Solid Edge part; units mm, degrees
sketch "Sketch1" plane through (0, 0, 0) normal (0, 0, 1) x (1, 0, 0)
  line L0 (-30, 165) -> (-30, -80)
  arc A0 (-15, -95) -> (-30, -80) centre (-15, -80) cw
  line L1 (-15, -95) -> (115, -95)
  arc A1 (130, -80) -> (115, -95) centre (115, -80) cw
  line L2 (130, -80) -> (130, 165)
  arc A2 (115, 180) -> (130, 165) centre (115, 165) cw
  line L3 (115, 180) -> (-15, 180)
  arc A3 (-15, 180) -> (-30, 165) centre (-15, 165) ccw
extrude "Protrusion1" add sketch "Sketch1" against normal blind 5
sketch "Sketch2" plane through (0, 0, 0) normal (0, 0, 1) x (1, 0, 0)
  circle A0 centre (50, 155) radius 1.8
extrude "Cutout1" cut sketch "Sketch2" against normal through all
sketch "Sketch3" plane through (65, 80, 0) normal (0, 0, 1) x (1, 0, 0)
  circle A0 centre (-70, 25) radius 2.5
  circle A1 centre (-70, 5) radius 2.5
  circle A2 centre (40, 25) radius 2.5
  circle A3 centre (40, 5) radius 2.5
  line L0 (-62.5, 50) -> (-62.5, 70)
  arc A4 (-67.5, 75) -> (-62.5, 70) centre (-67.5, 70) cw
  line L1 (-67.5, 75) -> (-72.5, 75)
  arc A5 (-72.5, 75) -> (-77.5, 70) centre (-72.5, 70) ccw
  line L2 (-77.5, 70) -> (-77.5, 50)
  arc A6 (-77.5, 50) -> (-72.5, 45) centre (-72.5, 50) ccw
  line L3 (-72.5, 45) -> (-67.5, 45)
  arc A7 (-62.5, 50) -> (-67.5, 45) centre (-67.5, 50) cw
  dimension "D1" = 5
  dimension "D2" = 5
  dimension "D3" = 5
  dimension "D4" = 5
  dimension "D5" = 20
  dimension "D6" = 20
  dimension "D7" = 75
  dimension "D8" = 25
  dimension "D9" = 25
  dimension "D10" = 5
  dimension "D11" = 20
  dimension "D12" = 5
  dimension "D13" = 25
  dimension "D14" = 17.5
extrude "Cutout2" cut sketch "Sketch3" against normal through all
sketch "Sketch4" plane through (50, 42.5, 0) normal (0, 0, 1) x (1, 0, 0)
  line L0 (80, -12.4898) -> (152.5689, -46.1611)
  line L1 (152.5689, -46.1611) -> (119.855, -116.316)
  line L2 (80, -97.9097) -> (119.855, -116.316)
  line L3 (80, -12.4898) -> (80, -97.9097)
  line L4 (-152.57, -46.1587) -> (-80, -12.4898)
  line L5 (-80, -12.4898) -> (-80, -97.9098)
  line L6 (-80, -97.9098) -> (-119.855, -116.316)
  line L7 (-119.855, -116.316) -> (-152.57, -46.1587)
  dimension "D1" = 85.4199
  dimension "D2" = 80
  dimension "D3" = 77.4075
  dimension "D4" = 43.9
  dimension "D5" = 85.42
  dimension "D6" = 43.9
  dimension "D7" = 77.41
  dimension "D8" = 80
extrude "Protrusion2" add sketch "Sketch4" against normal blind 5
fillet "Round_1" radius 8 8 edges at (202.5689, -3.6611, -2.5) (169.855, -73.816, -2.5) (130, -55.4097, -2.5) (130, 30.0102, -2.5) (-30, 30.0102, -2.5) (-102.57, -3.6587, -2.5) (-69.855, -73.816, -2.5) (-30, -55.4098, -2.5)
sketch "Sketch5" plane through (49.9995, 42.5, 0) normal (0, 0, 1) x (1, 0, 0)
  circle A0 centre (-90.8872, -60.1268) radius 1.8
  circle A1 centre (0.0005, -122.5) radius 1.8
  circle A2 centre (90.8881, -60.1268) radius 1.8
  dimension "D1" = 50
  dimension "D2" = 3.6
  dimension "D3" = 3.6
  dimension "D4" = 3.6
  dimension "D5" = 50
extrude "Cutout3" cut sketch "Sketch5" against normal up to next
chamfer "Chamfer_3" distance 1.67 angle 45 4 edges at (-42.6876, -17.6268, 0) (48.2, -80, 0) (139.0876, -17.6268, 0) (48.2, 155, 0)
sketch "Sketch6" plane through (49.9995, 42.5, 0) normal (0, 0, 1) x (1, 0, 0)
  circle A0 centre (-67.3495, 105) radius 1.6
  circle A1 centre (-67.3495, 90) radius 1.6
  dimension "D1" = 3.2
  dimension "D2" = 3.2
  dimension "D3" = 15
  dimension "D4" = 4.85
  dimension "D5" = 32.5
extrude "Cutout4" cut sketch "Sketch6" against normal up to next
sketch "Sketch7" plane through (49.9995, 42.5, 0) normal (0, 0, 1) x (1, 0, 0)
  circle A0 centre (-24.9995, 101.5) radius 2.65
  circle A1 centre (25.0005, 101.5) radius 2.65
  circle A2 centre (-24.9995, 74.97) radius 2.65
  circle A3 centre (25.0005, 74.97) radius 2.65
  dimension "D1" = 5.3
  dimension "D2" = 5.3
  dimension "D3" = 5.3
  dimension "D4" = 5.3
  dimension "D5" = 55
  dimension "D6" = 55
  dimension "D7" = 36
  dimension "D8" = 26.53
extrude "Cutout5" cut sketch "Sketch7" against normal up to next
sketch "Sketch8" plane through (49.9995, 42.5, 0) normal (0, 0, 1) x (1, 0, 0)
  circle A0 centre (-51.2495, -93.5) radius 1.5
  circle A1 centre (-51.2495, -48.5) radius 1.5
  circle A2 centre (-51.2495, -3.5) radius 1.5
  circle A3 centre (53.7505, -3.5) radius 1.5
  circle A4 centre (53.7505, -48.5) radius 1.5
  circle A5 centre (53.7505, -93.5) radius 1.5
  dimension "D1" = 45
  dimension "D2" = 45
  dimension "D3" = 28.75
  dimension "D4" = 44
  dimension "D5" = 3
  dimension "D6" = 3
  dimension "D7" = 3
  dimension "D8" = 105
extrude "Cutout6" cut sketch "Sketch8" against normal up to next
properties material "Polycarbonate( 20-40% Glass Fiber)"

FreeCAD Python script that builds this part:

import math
import FreeCAD as App
import Part
import Sketcher

V = App.Vector


def edges_at(feature, points):
    """Names of the edges that pass closest to the given points."""
    edges = feature.Shape.Edges
    near = lambda p: min(range(len(edges)), key=lambda i: edges[i].distToShape(Part.Vertex(*p))[0])
    return sorted({f"Edge{near(p) + 1}" for p in points})

doc = App.newDocument("Part")
params = doc.addObject("Spreadsheet::Sheet", "Params")
for row, (alias, value) in enumerate([
    ("sketch1_radius", "15 mm"),
    ("sketch1_width", "130 mm"),
    ("sketch1_height", "245 mm"),
    ("pad1_length", "5 mm"),
    ("sketch2_diameter", "3.6 mm"),
    ("sketch3_diameter", "5 mm"),
    ("sketch3_radius", "5 mm"),
    ("sketch3_width", "5 mm"),
    ("sketch3_height", "20 mm"),
    ("sketch4_length", "80 mm"),
    ("sketch4_length2", "80 mm"),
    ("sketch4_length3", "43.9 mm"),
    ("sketch4_length4", "43.9 mm"),
    ("sketch4_height", "85.42 mm"),
    ("pad2_length", "5 mm"),
    ("fillet_radius", "8 mm"),
    ("sketch5_diameter", "3.6 mm"),
    ("pocket3_length", "5 mm"),
    ("chamfer_size", "1.67 mm"),
    ("sketch6_diameter", "3.2 mm"),
    ("sketch7_diameter", "5.3 mm"),
    ("sketch8_diameter", "3 mm"),
], start=1):
    params.set(f"A{row}", alias)
    params.set(f"B{row}", "=" + value)
    params.setAlias(f"B{row}", alias)

body = doc.addObject("PartDesign::Body", "Body")

# Sketch on XY plane
sketch1 = body.newObject("Sketcher::SketchObject", "Sketch")
sketch1.AttachmentSupport = (doc.getObject("XY_Plane"), [""])
sketch1.MapMode = "FlatFace"
sketch1.addGeometry([
    Part.ArcOfCircle(Part.Circle(V(-15, 165, 0), V(0, 0, 1), 15), math.radians(90), math.radians(180)),  # 0
    Part.LineSegment(V(-30, 165, 0), V(-30, -80, 0)),  # 1
    Part.ArcOfCircle(Part.Circle(V(-15, -80, 0), V(0, 0, 1), 15), math.radians(180), math.radians(270)),  # 2
    Part.LineSegment(V(-15, -95, 0), V(115, -95, 0)),  # 3
    Part.ArcOfCircle(Part.Circle(V(115, -80, 0), V(0, 0, 1), 15), math.radians(-90), math.radians(0)),  # 4
    Part.LineSegment(V(130, -80, 0), V(130, 165, 0)),  # 5
    Part.ArcOfCircle(Part.Circle(V(115, 165, 0), V(0, 0, 1), 15), math.radians(0), math.radians(90)),  # 6
    Part.LineSegment(V(115, 180, 0), V(-15, 180, 0)),  # 7
], False)
sketch1.addConstraint([
    Sketcher.Constraint("Tangent", 0, 2, 1, 1),
    Sketcher.Constraint("Tangent", 1, 2, 2, 1),
    Sketcher.Constraint("Tangent", 2, 2, 3, 1),
    Sketcher.Constraint("Tangent", 3, 2, 4, 1),
    Sketcher.Constraint("Tangent", 4, 2, 5, 1),
    Sketcher.Constraint("Tangent", 5, 2, 6, 1),
    Sketcher.Constraint("Tangent", 6, 2, 7, 1),
    Sketcher.Constraint("Tangent", 7, 2, 0, 1),
    Sketcher.Constraint("Vertical", 1),
    Sketcher.Constraint("Horizontal", 3),
    Sketcher.Constraint("Vertical", 5),
    Sketcher.Constraint("Horizontal", 7),
    Sketcher.Constraint("Equal", 0, 2),
    Sketcher.Constraint("Equal", 2, 4),
    Sketcher.Constraint("Equal", 4, 6),
    Sketcher.Constraint("Radius", 0, 15.0),
    Sketcher.Constraint("DistanceX", 3, 1, 3, 2, 130.0),
    Sketcher.Constraint("DistanceY", 1, 2, 1, 1, 245.0),
    Sketcher.Constraint("DistanceX", 0, 3, -1, 1, 15.0),
    Sketcher.Constraint("DistanceY", -1, 1, 0, 3, 165.0),
])
sketch1.setExpression("Constraints[15]", "Params.sketch1_radius")
sketch1.setExpression("Constraints[16]", "Params.sketch1_width")
sketch1.setExpression("Constraints[17]", "Params.sketch1_height")
pad1 = body.newObject("PartDesign::Pad", "Pad")
pad1.Profile = sketch1
pad1.setExpression("Length", "Params.pad1_length")
pad1.Reversed = True

# Sketch on XY plane
sketch2 = body.newObject("Sketcher::SketchObject", "Sketch001")
sketch2.AttachmentSupport = (doc.getObject("XY_Plane"), [""])
sketch2.MapMode = "FlatFace"
sketch2.addGeometry(Part.Circle(V(50, 155, 0), V(0, 0, 1), 1.8), False)
sketch2.addConstraint([
    Sketcher.Constraint("Diameter", 0, 3.6),
    Sketcher.Constraint("DistanceX", -1, 1, 0, 3, 50.0),
    Sketcher.Constraint("DistanceY", -1, 1, 0, 3, 155.0),
])
sketch2.setExpression("Constraints[0]", "Params.sketch2_diameter")
pocket1 = body.newObject("PartDesign::Pocket", "Pocket")
pocket1.Profile = sketch2
pocket1.Type = "ThroughAll"

# Sketch on XY plane
sketch3 = body.newObject("Sketcher::SketchObject", "Sketch002")
sketch3.AttachmentSupport = (doc.getObject("XY_Plane"), [""])
sketch3.MapMode = "FlatFace"
sketch3.addGeometry([
    Part.Circle(V(-5, 105, 0), V(0, 0, 1), 2.5),  # 0
    Part.Circle(V(-5, 85, 0), V(0, 0, 1), 2.5),  # 1
    Part.Circle(V(105, 105, 0), V(0, 0, 1), 2.5),  # 2
    Part.Circle(V(105, 85, 0), V(0, 0, 1), 2.5),  # 3
    Part.ArcOfCircle(Part.Circle(V(-2.5, 130, 0), V(0, 0, 1), 5), math.radians(-90), math.radians(0)),  # 4
    Part.LineSegment(V(2.5, 130, 0), V(2.5, 150, 0)),  # 5
    Part.ArcOfCircle(Part.Circle(V(-2.5, 150, 0), V(0, 0, 1), 5), math.radians(0), math.radians(90)),  # 6
    Part.LineSegment(V(-2.5, 155, 0), V(-7.5, 155, 0)),  # 7
    Part.ArcOfCircle(Part.Circle(V(-7.5, 150, 0), V(0, 0, 1), 5), math.radians(90), math.radians(180)),  # 8
    Part.LineSegment(V(-12.5, 150, 0), V(-12.5, 130, 0)),  # 9
    Part.ArcOfCircle(Part.Circle(V(-7.5, 130, 0), V(0, 0, 1), 5), math.radians(180), math.radians(270)),  # 10
    Part.LineSegment(V(-7.5, 125, 0), V(-2.5, 125, 0)),  # 11
], False)
sketch3.addConstraint([
    Sketcher.Constraint("Tangent", 4, 2, 5, 1),
    Sketcher.Constraint("Tangent", 5, 2, 6, 1),
    Sketcher.Constraint("Tangent", 6, 2, 7, 1),
    Sketcher.Constraint("Tangent", 7, 2, 8, 1),
    Sketcher.Constraint("Tangent", 8, 2, 9, 1),
    Sketcher.Constraint("Tangent", 9, 2, 10, 1),
    Sketcher.Constraint("Tangent", 10, 2, 11, 1),
    Sketcher.Constraint("Tangent", 11, 2, 4, 1),
    Sketcher.Constraint("Vertical", 5),
    Sketcher.Constraint("Horizontal", 7),
    Sketcher.Constraint("Vertical", 9),
    Sketcher.Constraint("Horizontal", 11),
    Sketcher.Constraint("Equal", 0, 1),
    Sketcher.Constraint("Equal", 1, 2),
    Sketcher.Constraint("Equal", 2, 3),
    Sketcher.Constraint("Equal", 4, 6),
    Sketcher.Constraint("Equal", 6, 8),
    Sketcher.Constraint("Equal", 8, 10),
    Sketcher.Constraint("Horizontal", 0, 3, 2, 3),
    Sketcher.Constraint("Horizontal", 1, 3, 3, 3),
    Sketcher.Constraint("Vertical", 0, 3, 1, 3),
    Sketcher.Constraint("Vertical", 2, 3, 3, 3),
    Sketcher.Constraint("Diameter", 0, 5.0),
    Sketcher.Constraint("Radius", 4, 5.0),
    Sketcher.Constraint("DistanceX", 7, 2, 7, 1, 5.0),
    Sketcher.Constraint("DistanceY", 5, 1, 5, 2, 20.0),
    Sketcher.Constraint("DistanceX", 0, 3, -1, 1, 5.0),
    Sketcher.Constraint("DistanceY", -1, 1, 0, 3, 105.0),
    Sketcher.Constraint("DistanceY", -1, 1, 1, 3, 85.0),
    Sketcher.Constraint("DistanceX", -1, 1, 2, 3, 105.0),
    Sketcher.Constraint("DistanceY", -1, 1, 4, 3, 130.0),
    Sketcher.Constraint("DistanceX", 4, 3, -1, 1, 2.5),
])
sketch3.setExpression("Constraints[22]", "Params.sketch3_diameter")
sketch3.setExpression("Constraints[23]", "Params.sketch3_radius")
sketch3.setExpression("Constraints[24]", "Params.sketch3_width")
sketch3.setExpression("Constraints[25]", "Params.sketch3_height")
pocket2 = body.newObject("PartDesign::Pocket", "Pocket001")
pocket2.Profile = sketch3
pocket2.Type = "ThroughAll"

# Sketch on XY plane
sketch4 = body.newObject("Sketcher::SketchObject", "Sketch003")
sketch4.AttachmentSupport = (doc.getObject("XY_Plane"), [""])
sketch4.MapMode = "FlatFace"
sketch4.addGeometry([
    Part.LineSegment(V(202.5689, -3.6611, 0), V(130, 30.0102, 0)),  # 0
    Part.LineSegment(V(130, 30.0102, 0), V(130, -55.4097, 0)),  # 1
    Part.LineSegment(V(130, -55.4097, 0), V(169.855, -73.816, 0)),  # 2
    Part.LineSegment(V(169.855, -73.816, 0), V(202.5689, -3.6611, 0)),  # 3
    Part.LineSegment(V(-30, 30.0102, 0), V(-102.57, -3.6587, 0)),  # 4
    Part.LineSegment(V(-102.57, -3.6587, 0), V(-69.855, -73.816, 0)),  # 5
    Part.LineSegment(V(-69.855, -73.816, 0), V(-30, -55.4098, 0)),  # 6
    Part.LineSegment(V(-30, -55.4098, 0), V(-30, 30.0102, 0)),  # 7
], False)
sketch4.addConstraint([
    Sketcher.Constraint("Coincident", 0, 2, 1, 1),
    Sketcher.Constraint("Coincident", 1, 2, 2, 1),
    Sketcher.Constraint("Coincident", 2, 2, 3, 1),
    Sketcher.Constraint("Coincident", 3, 2, 0, 1),
    Sketcher.Constraint("Coincident", 4, 2, 5, 1),
    Sketcher.Constraint("Coincident", 5, 2, 6, 1),
    Sketcher.Constraint("Coincident", 6, 2, 7, 1),
    Sketcher.Constraint("Coincident", 7, 2, 4, 1),
    Sketcher.Constraint("Vertical", 1),
    Sketcher.Constraint("Vertical", 7),
    Sketcher.Constraint("Distance", 0, 80.0),
    Sketcher.Constraint("Distance", 4, 80.0),
    Sketcher.Constraint("DistanceX", -1, 1, 0, 2, 130.0),
    Sketcher.Constraint("DistanceX", 6, 2, -1, 1, 30.0),
    Sketcher.Constraint("Distance", 2, 43.9),
    Sketcher.Constraint("Distance", 6, 43.9),
    Sketcher.Constraint("DistanceY", 1, 2, 1, 1, 85.42),
    Sketcher.Constraint("DistanceY", 7, 1, 7, 2, 85.42),
    Sketcher.Constraint("Distance", 5, 77.41),
    Sketcher.Constraint("DistanceX", 4, 2, -1, 1, 102.57),
    Sketcher.Constraint("DistanceX", 5, 2, 2, 2, 239.71),
    Sketcher.Constraint("DistanceY", 6, 2, 0, 2, 85.42),
    Sketcher.Constraint("DistanceY", 2, 2, -1, 1, 73.816),
    Sketcher.Constraint("DistanceX", -1, 1, 3, 2, 202.569),
])
sketch4.setExpression("Constraints[10]", "Params.sketch4_length")
sketch4.setExpression("Constraints[11]", "Params.sketch4_length2")
sketch4.setExpression("Constraints[14]", "Params.sketch4_length3")
sketch4.setExpression("Constraints[15]", "Params.sketch4_length4")
sketch4.setExpression("Constraints[16]", "Params.sketch4_height")
pad2 = body.newObject("PartDesign::Pad", "Pad001")
pad2.Profile = sketch4
pad2.setExpression("Length", "Params.pad2_length")
pad2.Reversed = True
doc.recompute()

fillet = body.newObject("PartDesign::Fillet", "Fillet")
fillet.Base = (pad2, edges_at(pad2, [
    (202.569, -3.661, -2.5),
    (169.855, -73.816, -2.5),
    (130, -55.41, -2.5),
    (130, 30.01, -2.5),
    (-30, 30.01, -2.5),
    (-102.57, -3.659, -2.5),
    (-69.855, -73.816, -2.5),
    (-30, -55.41, -2.5),
]))
fillet.setExpression("Radius", "Params.fillet_radius")

# Sketch on XY plane
sketch5 = body.newObject("Sketcher::SketchObject", "Sketch004")
sketch5.AttachmentSupport = (doc.getObject("XY_Plane"), [""])
sketch5.MapMode = "FlatFace"
sketch5.addGeometry([
    Part.Circle(V(-40.8877, -17.6268, 0), V(0, 0, 1), 1.8),
    Part.Circle(V(50, -80, 0), V(0, 0, 1), 1.8),
    Part.Circle(V(140.8876, -17.6268, 0), V(0, 0, 1), 1.8),
], False)
sketch5.addConstraint([
    Sketcher.Constraint("Equal", 0, 1),
    Sketcher.Constraint("Equal", 1, 2),
    Sketcher.Constraint("Horizontal", 0, 3, 2, 3),
    Sketcher.Constraint("Diameter", 0, 3.6),
    Sketcher.Constraint("DistanceX", -1, 1, 1, 3, 50.0),
    Sketcher.Constraint("DistanceY", 1, 3, -1, 1, 80.0),
    Sketcher.Constraint("DistanceX", 0, 3, -1, 1, 40.8877),
    Sketcher.Constraint("DistanceY", 0, 3, -1, 1, 17.6268),
    Sketcher.Constraint("DistanceX", -1, 1, 2, 3, 140.8876),
])
sketch5.setExpression("Constraints[3]", "Params.sketch5_diameter")
pocket3 = body.newObject("PartDesign::Pocket", "Pocket002")
pocket3.Profile = sketch5
pocket3.setExpression("Length", "Params.pocket3_length")
doc.recompute()

chamfer = body.newObject("PartDesign::Chamfer", "Chamfer")
chamfer.Base = (pocket3, edges_at(pocket3, [
    (-42.688, -17.627, 0),
    (48.2, -80, 0),
    (139.088, -17.627, 0),
    (48.2, 155, 0),
]))
chamfer.setExpression("Size", "Params.chamfer_size")

# Sketch on XY plane
sketch6 = body.newObject("Sketcher::SketchObject", "Sketch005")
sketch6.AttachmentSupport = (doc.getObject("XY_Plane"), [""])
sketch6.MapMode = "FlatFace"
sketch6.addGeometry([
    Part.Circle(V(-17.35, 147.5, 0), V(0, 0, 1), 1.6),
    Part.Circle(V(-17.35, 132.5, 0), V(0, 0, 1), 1.6),
], False)
sketch6.addConstraint([
    Sketcher.Constraint("Equal", 0, 1),
    Sketcher.Constraint("Vertical", 0, 3, 1, 3),
    Sketcher.Constraint("Diameter", 0, 3.2),
    Sketcher.Constraint("DistanceY", 1, 3, 0, 3, 15.0),
    Sketcher.Constraint("DistanceY", -1, 1, 0, 3, 147.5),
    Sketcher.Constraint("DistanceX", 0, 3, -1, 1, 17.35),
])
sketch6.setExpression("Constraints[2]", "Params.sketch6_diameter")
pocket4 = body.newObject("PartDesign::Pocket", "Pocket003")
pocket4.Profile = sketch6
pocket4.Type = "UpToFirst"

# Sketch on XY plane
sketch7 = body.newObject("Sketcher::SketchObject", "Sketch006")
sketch7.AttachmentSupport = (doc.getObject("XY_Plane"), [""])
sketch7.MapMode = "FlatFace"
sketch7.addGeometry([
    Part.Circle(V(25, 144, 0), V(0, 0, 1), 2.65),
    Part.Circle(V(75, 144, 0), V(0, 0, 1), 2.65),
    Part.Circle(V(25, 117.47, 0), V(0, 0, 1), 2.65),
    Part.Circle(V(75, 117.47, 0), V(0, 0, 1), 2.65),
], False)
sketch7.addConstraint([
    Sketcher.Constraint("Equal", 0, 1),
    Sketcher.Constraint("Equal", 1, 2),
    Sketcher.Constraint("Equal", 2, 3),
    Sketcher.Constraint("Horizontal", 0, 3, 1, 3),
    Sketcher.Constraint("Horizontal", 2, 3, 3, 3),
    Sketcher.Constraint("Vertical", 0, 3, 2, 3),
    Sketcher.Constraint("Vertical", 1, 3, 3, 3),
    Sketcher.Constraint("Diameter", 0, 5.3),
    Sketcher.Constraint("DistanceX", -1, 1, 0, 3, 25.0),
    Sketcher.Constraint("DistanceY", -1, 1, 0, 3, 144.0),
    Sketcher.Constraint("DistanceX", -1, 1, 1, 3, 75.0),
    Sketcher.Constraint("DistanceY", -1, 1, 2, 3, 117.47),
])
sketch7.setExpression("Constraints[7]", "Params.sketch7_diameter")
pocket5 = body.newObject("PartDesign::Pocket", "Pocket004")
pocket5.Profile = sketch7
pocket5.Type = "UpToFirst"

# Sketch on XY plane
sketch8 = body.newObject("Sketcher::SketchObject", "Sketch007")
sketch8.AttachmentSupport = (doc.getObject("XY_Plane"), [""])
sketch8.MapMode = "FlatFace"
sketch8.addGeometry([
    Part.Circle(V(-1.25, -51, 0), V(0, 0, 1), 1.5),  # 0
    Part.Circle(V(-1.25, -6, 0), V(0, 0, 1), 1.5),  # 1
    Part.Circle(V(-1.25, 39, 0), V(0, 0, 1), 1.5),  # 2
    Part.Circle(V(103.75, 39, 0), V(0, 0, 1), 1.5),  # 3
    Part.Circle(V(103.75, -6, 0), V(0, 0, 1), 1.5),  # 4
    Part.Circle(V(103.75, -51, 0), V(0, 0, 1), 1.5),  # 5
], False)
sketch8.addConstraint([
    Sketcher.Constraint("Equal", 0, 1),
    Sketcher.Constraint("Equal", 1, 2),
    Sketcher.Constraint("Equal", 2, 3),
    Sketcher.Constraint("Equal", 3, 4),
    Sketcher.Constraint("Equal", 4, 5),
    Sketcher.Constraint("Horizontal", 2, 3, 3, 3),
    Sketcher.Constraint("Horizontal", 1, 3, 4, 3),
    Sketcher.Constraint("Horizontal", 0, 3, 5, 3),
    Sketcher.Constraint("Vertical", 0, 3, 1, 3),
    Sketcher.Constraint("Vertical", 1, 3, 2, 3),
    Sketcher.Constraint("Vertical", 3, 3, 4, 3),
    Sketcher.Constraint("Vertical", 4, 3, 5, 3),
    Sketcher.Constraint("Diameter", 0, 3.0),
    Sketcher.Constraint("DistanceY", 0, 3, -1, 1, 51.0),
    Sketcher.Constraint("DistanceY", 1, 3, -1, 1, 6.0),
    Sketcher.Constraint("DistanceY", -1, 1, 2, 3, 39.0),
    Sketcher.Constraint("DistanceX", 2, 3, 3, 3, 105.0),
    Sketcher.Constraint("DistanceX", 0, 3, -1, 1, 1.25),
])
sketch8.setExpression("Constraints[12]", "Params.sketch8_diameter")
pocket6 = body.newObject("PartDesign::Pocket", "Pocket005")
pocket6.Profile = sketch8
pocket6.Type = "UpToFirst"

doc.recompute()
